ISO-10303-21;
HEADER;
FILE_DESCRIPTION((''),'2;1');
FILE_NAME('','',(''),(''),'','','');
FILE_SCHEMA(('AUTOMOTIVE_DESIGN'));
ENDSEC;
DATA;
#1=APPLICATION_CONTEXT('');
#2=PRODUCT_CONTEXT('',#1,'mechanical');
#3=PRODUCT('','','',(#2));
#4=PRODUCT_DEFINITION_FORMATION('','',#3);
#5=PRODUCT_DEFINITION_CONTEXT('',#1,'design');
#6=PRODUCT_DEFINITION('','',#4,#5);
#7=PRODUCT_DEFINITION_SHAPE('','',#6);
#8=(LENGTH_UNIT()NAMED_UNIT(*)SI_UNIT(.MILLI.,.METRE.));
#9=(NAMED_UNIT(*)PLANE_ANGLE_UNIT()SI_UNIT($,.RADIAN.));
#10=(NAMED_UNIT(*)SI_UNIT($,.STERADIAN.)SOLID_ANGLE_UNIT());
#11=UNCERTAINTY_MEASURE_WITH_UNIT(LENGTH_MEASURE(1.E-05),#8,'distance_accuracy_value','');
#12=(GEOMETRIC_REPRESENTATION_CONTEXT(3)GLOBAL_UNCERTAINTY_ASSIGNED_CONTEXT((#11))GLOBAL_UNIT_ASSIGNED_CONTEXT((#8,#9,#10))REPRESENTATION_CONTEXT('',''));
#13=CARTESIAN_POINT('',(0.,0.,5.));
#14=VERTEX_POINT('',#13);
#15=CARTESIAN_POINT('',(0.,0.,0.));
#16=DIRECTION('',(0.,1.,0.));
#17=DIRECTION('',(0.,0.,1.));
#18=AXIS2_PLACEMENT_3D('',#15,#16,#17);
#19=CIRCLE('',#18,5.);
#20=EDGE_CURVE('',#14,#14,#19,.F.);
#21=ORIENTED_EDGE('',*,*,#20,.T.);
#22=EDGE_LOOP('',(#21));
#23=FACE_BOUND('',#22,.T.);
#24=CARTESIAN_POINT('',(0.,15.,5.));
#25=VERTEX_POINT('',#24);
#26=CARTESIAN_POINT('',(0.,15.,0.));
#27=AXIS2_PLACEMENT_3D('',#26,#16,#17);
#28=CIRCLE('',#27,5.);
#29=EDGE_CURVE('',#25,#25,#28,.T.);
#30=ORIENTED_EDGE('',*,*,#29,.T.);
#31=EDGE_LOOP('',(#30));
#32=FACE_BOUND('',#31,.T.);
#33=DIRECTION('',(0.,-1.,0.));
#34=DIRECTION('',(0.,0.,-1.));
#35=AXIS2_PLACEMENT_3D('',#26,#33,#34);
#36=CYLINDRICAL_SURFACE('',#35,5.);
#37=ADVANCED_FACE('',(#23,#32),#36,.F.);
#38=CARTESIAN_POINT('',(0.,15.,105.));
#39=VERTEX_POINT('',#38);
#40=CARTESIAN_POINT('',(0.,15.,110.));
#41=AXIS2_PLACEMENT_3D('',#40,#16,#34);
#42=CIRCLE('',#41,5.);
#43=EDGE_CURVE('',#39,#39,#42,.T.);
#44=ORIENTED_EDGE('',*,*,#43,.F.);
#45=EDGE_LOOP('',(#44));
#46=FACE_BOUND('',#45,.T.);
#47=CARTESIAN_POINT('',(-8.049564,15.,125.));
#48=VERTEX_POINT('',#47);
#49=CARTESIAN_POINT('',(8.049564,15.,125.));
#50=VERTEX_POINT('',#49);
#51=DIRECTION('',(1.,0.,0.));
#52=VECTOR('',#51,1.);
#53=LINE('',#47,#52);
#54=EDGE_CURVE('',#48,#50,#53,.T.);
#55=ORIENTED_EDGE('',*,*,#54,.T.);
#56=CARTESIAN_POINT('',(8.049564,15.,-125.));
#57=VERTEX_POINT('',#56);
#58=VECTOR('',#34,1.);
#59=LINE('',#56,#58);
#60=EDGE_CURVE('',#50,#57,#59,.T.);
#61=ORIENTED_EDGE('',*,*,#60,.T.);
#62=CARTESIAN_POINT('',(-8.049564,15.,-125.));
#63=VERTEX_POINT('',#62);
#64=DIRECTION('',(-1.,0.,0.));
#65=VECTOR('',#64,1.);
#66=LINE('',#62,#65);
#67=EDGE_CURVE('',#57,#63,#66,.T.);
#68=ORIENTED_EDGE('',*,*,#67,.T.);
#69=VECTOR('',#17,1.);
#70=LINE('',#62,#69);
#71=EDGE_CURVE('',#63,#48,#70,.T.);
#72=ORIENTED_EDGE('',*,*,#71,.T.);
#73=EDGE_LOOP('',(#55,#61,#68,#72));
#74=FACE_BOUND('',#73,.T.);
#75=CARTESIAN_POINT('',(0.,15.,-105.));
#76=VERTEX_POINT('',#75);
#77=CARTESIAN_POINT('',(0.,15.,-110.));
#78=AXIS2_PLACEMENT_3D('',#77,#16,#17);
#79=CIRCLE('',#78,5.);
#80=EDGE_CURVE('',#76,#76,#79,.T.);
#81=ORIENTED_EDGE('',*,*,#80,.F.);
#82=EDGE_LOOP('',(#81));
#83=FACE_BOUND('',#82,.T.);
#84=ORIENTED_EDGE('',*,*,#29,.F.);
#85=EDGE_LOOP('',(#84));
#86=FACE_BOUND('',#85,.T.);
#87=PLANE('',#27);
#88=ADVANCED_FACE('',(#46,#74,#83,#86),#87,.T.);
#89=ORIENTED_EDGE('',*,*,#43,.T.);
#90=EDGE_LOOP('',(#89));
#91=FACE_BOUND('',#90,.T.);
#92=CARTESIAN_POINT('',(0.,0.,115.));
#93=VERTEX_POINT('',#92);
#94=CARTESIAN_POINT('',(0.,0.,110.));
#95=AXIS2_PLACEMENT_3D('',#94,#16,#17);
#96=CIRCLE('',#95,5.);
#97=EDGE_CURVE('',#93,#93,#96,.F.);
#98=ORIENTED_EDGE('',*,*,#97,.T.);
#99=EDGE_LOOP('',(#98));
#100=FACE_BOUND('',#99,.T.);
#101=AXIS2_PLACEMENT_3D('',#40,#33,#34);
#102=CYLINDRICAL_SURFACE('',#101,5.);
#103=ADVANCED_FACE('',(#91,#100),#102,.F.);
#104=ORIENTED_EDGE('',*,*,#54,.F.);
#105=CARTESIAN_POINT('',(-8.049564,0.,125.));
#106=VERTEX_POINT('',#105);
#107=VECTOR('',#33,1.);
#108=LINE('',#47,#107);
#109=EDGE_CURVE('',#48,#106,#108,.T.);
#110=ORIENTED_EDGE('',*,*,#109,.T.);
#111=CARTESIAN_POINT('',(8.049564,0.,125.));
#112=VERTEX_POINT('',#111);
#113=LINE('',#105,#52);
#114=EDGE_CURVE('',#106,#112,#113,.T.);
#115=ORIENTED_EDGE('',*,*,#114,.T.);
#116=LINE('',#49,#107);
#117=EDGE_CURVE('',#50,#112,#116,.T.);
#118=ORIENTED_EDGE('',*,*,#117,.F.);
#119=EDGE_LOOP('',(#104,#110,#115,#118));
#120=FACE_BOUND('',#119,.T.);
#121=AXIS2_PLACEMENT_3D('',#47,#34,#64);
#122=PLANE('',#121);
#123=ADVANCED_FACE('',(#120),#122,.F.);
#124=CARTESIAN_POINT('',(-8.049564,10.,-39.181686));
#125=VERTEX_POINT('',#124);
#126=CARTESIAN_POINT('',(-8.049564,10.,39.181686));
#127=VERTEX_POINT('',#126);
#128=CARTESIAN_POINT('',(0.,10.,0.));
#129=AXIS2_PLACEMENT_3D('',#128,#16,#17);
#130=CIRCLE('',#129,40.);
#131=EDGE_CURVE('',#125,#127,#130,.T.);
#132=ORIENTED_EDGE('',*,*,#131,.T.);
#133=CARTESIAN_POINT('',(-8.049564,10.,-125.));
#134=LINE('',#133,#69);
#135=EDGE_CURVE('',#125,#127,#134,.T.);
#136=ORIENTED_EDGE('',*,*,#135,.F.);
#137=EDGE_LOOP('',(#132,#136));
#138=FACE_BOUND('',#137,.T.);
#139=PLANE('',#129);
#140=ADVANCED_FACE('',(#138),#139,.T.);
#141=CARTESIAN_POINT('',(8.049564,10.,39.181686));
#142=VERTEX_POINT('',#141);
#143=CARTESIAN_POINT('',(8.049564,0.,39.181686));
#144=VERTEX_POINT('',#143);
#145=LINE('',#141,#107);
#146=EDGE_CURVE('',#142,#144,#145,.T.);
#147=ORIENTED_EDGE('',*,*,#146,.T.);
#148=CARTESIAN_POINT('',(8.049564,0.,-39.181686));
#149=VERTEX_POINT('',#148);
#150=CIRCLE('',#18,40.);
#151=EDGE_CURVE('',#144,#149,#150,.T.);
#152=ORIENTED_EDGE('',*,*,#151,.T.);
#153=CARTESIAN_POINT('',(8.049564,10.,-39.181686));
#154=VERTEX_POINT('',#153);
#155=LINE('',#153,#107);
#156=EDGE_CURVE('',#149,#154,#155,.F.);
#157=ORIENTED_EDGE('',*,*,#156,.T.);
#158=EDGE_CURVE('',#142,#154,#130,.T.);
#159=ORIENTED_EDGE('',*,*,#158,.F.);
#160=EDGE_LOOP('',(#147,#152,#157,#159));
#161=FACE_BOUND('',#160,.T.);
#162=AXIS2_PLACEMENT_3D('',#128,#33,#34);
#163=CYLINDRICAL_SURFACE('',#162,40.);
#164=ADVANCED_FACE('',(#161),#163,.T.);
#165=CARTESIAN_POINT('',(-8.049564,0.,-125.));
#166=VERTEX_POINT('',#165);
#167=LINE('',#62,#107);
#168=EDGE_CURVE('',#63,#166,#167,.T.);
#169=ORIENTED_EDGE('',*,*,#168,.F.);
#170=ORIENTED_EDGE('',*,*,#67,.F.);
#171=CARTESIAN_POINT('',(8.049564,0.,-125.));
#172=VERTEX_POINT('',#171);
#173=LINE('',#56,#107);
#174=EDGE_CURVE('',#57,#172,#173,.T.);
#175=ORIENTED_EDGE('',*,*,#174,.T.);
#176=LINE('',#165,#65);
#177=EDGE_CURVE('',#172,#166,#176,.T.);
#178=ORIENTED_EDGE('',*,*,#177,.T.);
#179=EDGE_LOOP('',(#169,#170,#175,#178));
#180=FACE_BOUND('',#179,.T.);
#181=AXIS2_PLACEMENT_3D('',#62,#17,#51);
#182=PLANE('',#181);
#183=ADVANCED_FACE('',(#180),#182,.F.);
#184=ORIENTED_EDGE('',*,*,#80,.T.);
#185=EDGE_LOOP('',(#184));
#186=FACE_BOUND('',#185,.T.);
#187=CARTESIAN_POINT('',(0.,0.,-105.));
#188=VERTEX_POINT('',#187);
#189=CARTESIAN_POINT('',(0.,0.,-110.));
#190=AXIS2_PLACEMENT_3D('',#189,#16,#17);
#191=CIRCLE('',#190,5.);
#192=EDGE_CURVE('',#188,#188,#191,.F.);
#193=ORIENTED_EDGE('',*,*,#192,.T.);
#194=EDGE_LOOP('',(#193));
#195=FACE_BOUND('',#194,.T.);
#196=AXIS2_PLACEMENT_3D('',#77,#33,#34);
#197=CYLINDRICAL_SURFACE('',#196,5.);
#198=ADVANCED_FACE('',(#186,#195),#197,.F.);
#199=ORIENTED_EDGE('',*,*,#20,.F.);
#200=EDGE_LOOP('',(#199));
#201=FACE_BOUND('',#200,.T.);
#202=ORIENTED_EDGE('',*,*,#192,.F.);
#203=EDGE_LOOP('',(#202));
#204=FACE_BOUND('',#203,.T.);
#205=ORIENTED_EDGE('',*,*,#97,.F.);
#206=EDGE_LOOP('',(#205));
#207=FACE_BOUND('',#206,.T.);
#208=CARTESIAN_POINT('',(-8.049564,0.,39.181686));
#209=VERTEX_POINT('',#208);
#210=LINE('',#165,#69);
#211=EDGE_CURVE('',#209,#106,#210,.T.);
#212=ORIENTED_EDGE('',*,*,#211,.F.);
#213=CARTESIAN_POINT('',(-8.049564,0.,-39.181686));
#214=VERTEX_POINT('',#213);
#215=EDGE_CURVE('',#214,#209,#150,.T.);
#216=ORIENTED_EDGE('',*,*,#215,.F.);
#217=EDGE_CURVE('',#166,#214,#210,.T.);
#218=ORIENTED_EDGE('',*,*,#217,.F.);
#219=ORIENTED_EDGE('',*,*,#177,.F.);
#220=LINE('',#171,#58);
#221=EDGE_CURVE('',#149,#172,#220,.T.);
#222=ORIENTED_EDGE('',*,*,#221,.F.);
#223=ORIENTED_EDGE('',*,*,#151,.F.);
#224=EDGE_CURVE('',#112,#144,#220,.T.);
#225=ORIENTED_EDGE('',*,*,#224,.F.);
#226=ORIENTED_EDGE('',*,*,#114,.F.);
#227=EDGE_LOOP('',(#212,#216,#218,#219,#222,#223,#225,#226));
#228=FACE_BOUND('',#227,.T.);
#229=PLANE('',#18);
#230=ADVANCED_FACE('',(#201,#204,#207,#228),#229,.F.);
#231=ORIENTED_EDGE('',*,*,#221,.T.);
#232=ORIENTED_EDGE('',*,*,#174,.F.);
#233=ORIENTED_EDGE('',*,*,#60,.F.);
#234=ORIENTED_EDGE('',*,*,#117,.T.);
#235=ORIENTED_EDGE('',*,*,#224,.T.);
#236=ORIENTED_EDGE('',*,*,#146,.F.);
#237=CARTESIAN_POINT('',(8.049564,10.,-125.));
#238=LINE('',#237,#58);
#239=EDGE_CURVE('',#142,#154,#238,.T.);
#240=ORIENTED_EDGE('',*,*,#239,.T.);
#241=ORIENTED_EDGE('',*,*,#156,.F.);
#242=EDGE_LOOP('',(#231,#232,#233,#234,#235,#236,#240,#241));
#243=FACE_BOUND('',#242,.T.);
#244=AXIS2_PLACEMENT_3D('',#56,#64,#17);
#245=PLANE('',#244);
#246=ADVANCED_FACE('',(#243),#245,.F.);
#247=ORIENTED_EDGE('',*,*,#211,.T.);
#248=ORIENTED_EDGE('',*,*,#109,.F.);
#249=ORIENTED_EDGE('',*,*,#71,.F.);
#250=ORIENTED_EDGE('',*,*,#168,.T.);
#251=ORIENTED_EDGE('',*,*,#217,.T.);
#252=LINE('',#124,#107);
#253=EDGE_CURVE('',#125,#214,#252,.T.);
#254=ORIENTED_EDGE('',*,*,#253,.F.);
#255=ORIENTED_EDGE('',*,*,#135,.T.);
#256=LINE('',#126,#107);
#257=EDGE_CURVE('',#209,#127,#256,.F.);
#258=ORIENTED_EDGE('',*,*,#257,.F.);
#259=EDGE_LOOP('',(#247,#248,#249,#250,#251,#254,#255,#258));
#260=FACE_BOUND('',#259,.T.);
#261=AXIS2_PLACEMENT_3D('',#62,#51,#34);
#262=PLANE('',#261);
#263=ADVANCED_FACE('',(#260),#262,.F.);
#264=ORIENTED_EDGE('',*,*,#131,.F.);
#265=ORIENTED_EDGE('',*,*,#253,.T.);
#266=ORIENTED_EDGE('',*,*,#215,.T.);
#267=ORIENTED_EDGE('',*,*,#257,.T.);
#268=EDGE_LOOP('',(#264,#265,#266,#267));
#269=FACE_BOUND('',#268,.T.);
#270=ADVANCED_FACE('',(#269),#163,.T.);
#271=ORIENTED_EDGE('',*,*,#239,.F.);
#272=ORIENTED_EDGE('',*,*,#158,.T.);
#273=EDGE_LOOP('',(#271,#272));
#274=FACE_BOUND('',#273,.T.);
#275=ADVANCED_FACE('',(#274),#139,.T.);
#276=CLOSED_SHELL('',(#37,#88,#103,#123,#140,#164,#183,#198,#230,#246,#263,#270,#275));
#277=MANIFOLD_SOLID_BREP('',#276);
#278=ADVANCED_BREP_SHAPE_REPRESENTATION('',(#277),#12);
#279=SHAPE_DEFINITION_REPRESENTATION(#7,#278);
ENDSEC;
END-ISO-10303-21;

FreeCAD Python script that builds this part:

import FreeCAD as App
import Part
import Sketcher
Q = App.Units.Quantity

doc = App.newDocument("Part")
body = doc.addObject("PartDesign::Body", "Body")

sketch1 = body.newObject("Sketcher::SketchObject", "Sketch")
sketch1.AttachmentSupport = (doc.getObject("XZ_Plane"), [""])
sketch1.MapMode = "FlatFace"
sketch1.addGeometry([
    Part.LineSegment(App.Vector(-8.049564, -125, 0), App.Vector(-8.049564, 125, 0)),
    Part.LineSegment(App.Vector(-8.049564, 125, 0), App.Vector(8.049564, 125, 0)),
    Part.LineSegment(App.Vector(8.049564, 125, 0), App.Vector(8.049564, -125, 0)),
    Part.LineSegment(App.Vector(8.049564, -125, 0), App.Vector(-8.049564, -125, 0)),
], False)
sketch1.addConstraint([
    Sketcher.Constraint("Coincident", 0, 2, 1, 1),
    Sketcher.Constraint("Coincident", 1, 2, 2, 1),
    Sketcher.Constraint("Coincident", 2, 2, 3, 1),
    Sketcher.Constraint("Coincident", 3, 2, 0, 1),
    Sketcher.Constraint("Vertical", 0),
    Sketcher.Constraint("Horizontal", 1),
    Sketcher.Constraint("Vertical", 2),
    Sketcher.Constraint("Horizontal", 3),
    Sketcher.Constraint("Symmetric", 0, 2, 2, 2, -1, 1),
    Sketcher.Constraint("DistanceY", 0, 1, 0, 2, Q("250 mm")),
    Sketcher.Constraint("DistanceX", 1, 1, 1, 2, Q("16.099129 mm")),
])
pad1 = body.newObject("PartDesign::Pad", "Pad")
pad1.Profile = sketch1
pad1.Length = 15
pad1.Reversed = True

sketch2 = body.newObject("Sketcher::SketchObject", "Sketch001")
sketch2.AttachmentSupport = (doc.getObject("XZ_Plane"), [""])
sketch2.MapMode = "FlatFace"
sketch2.addGeometry(Part.Circle(App.Vector(0, 0, 0), App.Vector(0, 0, 1), 40), False)
sketch2.addConstraint([
    Sketcher.Constraint("Coincident", 0, 3, -1, 1),
    Sketcher.Constraint("Diameter", 0, Q("80 mm")),
])
pad2 = body.newObject("PartDesign::Pad", "Pad001")
pad2.Profile = sketch2
pad2.Length = 10
pad2.Reversed = True

sketch3 = body.newObject("Sketcher::SketchObject", "Sketch002")
sketch3.AttachmentSupport = (doc.getObject("XZ_Plane"), [""])
sketch3.MapMode = "FlatFace"
sketch3.addGeometry([
    Part.Circle(App.Vector(0, 0, 0), App.Vector(0, 0, 1), 5),
    Part.Circle(App.Vector(0, -110, 0), App.Vector(0, 0, 1), 5),
    Part.Circle(App.Vector(0, 110, 0), App.Vector(0, 0, 1), 5),
], False)
sketch3.addConstraint([
    Sketcher.Constraint("Coincident", 0, 3, -1, 1),
    Sketcher.Constraint("Equal", 0, 1),
    Sketcher.Constraint("Equal", 1, 2),
    Sketcher.Constraint("Symmetric", 1, 3, 2, 3, -1, 1),
    Sketcher.Constraint("PointOnObject", 1, 3, -2),
    Sketcher.Constraint("Diameter", 0, Q("10 mm")),
    Sketcher.Constraint("DistanceY", 1, 3, -1, 1, Q("110 mm")),
])
pocket1 = body.newObject("PartDesign::Pocket", "Pocket")
pocket1.Profile = sketch3
pocket1.Type = "ThroughAll"
pocket1.Midplane = True

doc.recompute()
